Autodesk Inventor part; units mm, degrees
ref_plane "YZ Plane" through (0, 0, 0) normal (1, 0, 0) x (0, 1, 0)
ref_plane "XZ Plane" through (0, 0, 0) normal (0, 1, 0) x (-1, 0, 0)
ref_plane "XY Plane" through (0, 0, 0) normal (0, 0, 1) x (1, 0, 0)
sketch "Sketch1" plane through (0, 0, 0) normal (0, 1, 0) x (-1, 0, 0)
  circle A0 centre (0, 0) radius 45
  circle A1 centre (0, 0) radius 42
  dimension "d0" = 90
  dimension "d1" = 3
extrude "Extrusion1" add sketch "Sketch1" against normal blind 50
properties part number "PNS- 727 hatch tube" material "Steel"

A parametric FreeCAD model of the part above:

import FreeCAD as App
import Part
import Sketcher
Q = App.Units.Quantity

doc = App.newDocument("Part")
params = doc.addObject("Spreadsheet::Sheet", "Params")
for row, (alias, value) in enumerate([
    ("sketch1_diameter", "90 mm"),
    ("sketch1_diameter2", "84 mm"),
    ("pad1_length", "50 mm"),
], start=1):
    params.set(f"A{row}", alias)
    params.set(f"B{row}", "=" + value)
    params.setAlias(f"B{row}", alias)

body = doc.addObject("PartDesign::Body", "Body")

# Sketch on XZ plane
sketch1 = body.newObject("Sketcher::SketchObject", "Sketch")
sketch1.AttachmentSupport = (doc.getObject("XZ_Plane"), [""])
sketch1.MapMode = "FlatFace"
sketch1.addGeometry(Part.Circle(App.Vector(0, 0, 0), App.Vector(0, 0, 1), 45), False)
sketch1.addGeometry(Part.Circle(App.Vector(0, 0, 0), App.Vector(0, 0, 1), 42), False)
sketch1.addConstraint(Sketcher.Constraint("Coincident", 0, 3, -1, 1))
sketch1.addConstraint(Sketcher.Constraint("Coincident", 1, 3, -1, 1))
sketch1.addConstraint(Sketcher.Constraint("Diameter", 0, Q("90 mm")))
sketch1.addConstraint(Sketcher.Constraint("Diameter", 1, Q("84 mm")))
sketch1.setExpression("Constraints[2]", "Params.sketch1_diameter")
sketch1.setExpression("Constraints[3]", "Params.sketch1_diameter2")
pad1 = body.newObject("PartDesign::Pad", "Pad")
pad1.Profile = sketch1
pad1.setExpression("Length", "Params.pad1_length")

doc.recompute()
